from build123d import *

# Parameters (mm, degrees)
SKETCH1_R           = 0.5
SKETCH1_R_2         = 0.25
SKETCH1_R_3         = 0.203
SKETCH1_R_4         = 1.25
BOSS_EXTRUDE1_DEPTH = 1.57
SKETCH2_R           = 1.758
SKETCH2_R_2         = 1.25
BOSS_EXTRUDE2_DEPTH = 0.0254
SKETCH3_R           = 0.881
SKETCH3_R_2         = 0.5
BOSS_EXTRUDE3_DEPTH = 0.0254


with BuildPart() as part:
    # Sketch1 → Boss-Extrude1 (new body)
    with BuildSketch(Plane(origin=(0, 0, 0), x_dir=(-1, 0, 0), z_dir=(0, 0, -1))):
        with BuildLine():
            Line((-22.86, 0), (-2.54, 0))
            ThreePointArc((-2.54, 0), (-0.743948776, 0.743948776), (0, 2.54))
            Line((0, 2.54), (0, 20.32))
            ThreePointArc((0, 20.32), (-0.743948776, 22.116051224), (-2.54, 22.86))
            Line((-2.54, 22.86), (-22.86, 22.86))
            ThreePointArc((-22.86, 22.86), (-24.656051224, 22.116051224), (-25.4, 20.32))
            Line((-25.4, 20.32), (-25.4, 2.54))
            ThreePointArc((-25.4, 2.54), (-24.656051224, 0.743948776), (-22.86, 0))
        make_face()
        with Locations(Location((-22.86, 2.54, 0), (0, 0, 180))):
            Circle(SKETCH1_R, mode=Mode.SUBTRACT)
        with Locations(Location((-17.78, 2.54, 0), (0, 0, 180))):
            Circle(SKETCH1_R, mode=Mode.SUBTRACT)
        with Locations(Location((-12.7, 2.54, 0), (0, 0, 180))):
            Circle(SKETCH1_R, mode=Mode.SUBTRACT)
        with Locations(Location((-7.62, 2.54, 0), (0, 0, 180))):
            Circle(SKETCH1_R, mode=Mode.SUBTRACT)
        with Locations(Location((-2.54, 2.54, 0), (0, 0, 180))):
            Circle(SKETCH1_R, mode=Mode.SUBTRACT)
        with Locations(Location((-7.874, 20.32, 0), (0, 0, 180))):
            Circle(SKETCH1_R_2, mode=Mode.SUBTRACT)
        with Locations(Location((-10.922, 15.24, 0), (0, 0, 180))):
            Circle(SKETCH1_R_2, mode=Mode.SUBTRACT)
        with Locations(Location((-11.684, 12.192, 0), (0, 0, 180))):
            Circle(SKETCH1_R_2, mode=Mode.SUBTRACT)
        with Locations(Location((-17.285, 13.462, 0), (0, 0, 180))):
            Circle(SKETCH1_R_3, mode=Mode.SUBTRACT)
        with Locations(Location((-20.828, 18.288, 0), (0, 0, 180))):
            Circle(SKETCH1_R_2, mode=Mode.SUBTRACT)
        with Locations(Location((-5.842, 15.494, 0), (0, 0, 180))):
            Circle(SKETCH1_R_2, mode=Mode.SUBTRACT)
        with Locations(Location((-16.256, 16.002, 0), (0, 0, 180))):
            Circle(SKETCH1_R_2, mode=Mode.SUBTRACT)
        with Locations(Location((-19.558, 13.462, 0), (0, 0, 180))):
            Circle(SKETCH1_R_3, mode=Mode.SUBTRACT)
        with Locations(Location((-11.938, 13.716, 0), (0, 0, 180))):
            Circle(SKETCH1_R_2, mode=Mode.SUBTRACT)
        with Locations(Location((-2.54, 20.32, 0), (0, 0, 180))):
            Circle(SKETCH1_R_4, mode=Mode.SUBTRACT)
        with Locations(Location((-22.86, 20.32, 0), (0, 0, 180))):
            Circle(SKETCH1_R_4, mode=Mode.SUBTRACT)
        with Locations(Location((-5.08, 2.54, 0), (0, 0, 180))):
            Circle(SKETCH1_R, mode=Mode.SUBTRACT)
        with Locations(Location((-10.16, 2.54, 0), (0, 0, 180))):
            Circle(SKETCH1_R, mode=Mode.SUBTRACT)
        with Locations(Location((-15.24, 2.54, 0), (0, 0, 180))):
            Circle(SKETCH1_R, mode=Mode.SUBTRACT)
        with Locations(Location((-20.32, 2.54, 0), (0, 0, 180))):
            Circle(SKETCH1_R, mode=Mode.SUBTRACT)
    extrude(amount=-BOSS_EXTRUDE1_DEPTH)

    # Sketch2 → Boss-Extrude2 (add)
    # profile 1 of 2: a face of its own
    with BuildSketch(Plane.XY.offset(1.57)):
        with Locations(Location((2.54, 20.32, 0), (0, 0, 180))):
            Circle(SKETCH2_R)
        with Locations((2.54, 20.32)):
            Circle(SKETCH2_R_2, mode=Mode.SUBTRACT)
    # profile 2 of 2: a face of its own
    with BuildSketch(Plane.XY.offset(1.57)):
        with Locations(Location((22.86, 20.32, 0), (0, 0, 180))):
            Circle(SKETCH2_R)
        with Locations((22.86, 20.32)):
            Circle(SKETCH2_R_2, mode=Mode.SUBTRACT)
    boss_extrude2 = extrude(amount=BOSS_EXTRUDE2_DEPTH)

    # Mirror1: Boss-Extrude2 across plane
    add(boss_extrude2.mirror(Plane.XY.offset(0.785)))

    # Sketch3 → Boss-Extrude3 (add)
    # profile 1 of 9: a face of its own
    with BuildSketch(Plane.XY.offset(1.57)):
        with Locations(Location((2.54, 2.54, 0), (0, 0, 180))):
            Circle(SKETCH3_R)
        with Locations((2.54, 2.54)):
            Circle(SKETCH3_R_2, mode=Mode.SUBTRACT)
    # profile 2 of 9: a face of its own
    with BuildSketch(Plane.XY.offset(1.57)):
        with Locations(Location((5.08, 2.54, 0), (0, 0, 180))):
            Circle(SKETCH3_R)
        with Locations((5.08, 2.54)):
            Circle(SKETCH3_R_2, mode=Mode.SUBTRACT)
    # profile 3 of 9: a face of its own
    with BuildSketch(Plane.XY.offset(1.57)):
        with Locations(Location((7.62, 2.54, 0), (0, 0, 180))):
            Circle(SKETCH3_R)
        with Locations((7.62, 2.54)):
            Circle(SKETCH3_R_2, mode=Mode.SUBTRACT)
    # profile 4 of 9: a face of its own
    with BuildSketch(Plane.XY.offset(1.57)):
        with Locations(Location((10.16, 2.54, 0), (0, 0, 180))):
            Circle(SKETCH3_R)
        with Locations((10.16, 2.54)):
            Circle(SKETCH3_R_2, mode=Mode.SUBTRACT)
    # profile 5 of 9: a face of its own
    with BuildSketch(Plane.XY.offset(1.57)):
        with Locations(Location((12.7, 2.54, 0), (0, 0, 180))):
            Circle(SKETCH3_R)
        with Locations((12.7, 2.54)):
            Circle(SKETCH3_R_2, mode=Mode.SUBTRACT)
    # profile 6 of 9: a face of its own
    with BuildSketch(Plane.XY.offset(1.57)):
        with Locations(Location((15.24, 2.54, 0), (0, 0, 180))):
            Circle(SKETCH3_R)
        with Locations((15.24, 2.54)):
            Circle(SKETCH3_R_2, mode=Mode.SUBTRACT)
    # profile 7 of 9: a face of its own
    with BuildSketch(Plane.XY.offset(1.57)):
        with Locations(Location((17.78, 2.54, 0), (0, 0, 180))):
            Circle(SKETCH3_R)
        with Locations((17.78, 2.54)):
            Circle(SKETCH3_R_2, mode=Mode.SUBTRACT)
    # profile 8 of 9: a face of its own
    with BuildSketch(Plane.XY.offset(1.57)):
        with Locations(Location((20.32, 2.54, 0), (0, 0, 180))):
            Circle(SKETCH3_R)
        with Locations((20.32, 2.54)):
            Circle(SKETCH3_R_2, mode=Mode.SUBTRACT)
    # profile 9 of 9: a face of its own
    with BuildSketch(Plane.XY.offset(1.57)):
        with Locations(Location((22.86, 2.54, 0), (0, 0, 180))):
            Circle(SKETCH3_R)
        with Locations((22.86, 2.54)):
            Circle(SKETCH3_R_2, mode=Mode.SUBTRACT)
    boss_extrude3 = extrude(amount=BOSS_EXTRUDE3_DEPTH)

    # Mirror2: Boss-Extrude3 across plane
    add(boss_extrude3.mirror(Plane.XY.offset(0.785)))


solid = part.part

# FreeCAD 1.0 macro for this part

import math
import FreeCAD as App
import Part
import Sketcher
from FreeCAD import Vector
Q = App.Units.Quantity

doc = App.newDocument("Part")
params = doc.addObject("Spreadsheet::Sheet", "Params")
for row, (alias, value) in enumerate([
    ("sketch1_radius", "0.1 in"),
    ("sketch1_width", "0.8 in"),
    ("sketch1_height", "0.7 in"),
    ("pad1_length", "1.57 mm"),
    ("pad2_length", "0.001 in"),
    ("pad3_length", "0.001 in"),
], start=1):
    params.set(f"A{row}", alias)
    params.set(f"B{row}", "=" + value)
    params.setAlias(f"B{row}", alias)

body = doc.addObject("PartDesign::Body", "Body")

# Sketch on XY plane
sketch1 = doc.addObject("Sketcher::SketchObject", "Sketch")
body.addObject(sketch1)
sketch1.AttachmentSupport = (doc.XY_Plane, [""])
sketch1.MapMode = "FlatFace"
sketch1.addGeometry(Part.LineSegment(Vector(22.86, 0, 0), Vector(2.54, 0, 0)), False)
sketch1.addGeometry(Part.ArcOfCircle(Part.Circle(Vector(2.54, 2.54, 0), Vector(0, 0, 1), 2.54), math.radians(-180), math.radians(-90)), False)
sketch1.addGeometry(Part.LineSegment(Vector(0, 2.54, 0), Vector(0, 20.32, 0)), False)
sketch1.addGeometry(Part.ArcOfCircle(Part.Circle(Vector(2.54, 20.32, 0), Vector(0, 0, 1), 2.54), math.radians(90), math.radians(180)), False)
sketch1.addGeometry(Part.LineSegment(Vector(2.54, 22.86, 0), Vector(22.86, 22.86, 0)), False)
sketch1.addGeometry(Part.ArcOfCircle(Part.Circle(Vector(22.86, 20.32, 0), Vector(0, 0, 1), 2.54), math.radians(0), math.radians(90)), False)
sketch1.addGeometry(Part.LineSegment(Vector(25.4, 20.32, 0), Vector(25.4, 2.54, 0)), False)
sketch1.addGeometry(Part.ArcOfCircle(Part.Circle(Vector(22.86, 2.54, 0), Vector(0, 0, 1), 2.54), math.radians(-90), math.radians(0)), False)
sketch1.addGeometry(Part.Circle(Vector(22.86, 2.54, 0), Vector(0, 0, 1), 0.5), False)
sketch1.addGeometry(Part.Circle(Vector(20.32, 2.54, 0), Vector(0, 0, 1), 0.5), False)
sketch1.addGeometry(Part.Circle(Vector(17.78, 2.54, 0), Vector(0, 0, 1), 0.5), False)
sketch1.addGeometry(Part.Circle(Vector(15.24, 2.54, 0), Vector(0, 0, 1), 0.5), False)
sketch1.addGeometry(Part.Circle(Vector(12.7, 2.54, 0), Vector(0, 0, 1), 0.5), False)
sketch1.addGeometry(Part.Circle(Vector(10.16, 2.54, 0), Vector(0, 0, 1), 0.5), False)
sketch1.addGeometry(Part.Circle(Vector(7.62, 2.54, 0), Vector(0, 0, 1), 0.5), False)
sketch1.addGeometry(Part.Circle(Vector(5.08, 2.54, 0), Vector(0, 0, 1), 0.5), False)
sketch1.addGeometry(Part.Circle(Vector(2.54, 2.54, 0), Vector(0, 0, 1), 0.5), False)
sketch1.addGeometry(Part.Circle(Vector(19.56, 13.46, 0), Vector(0, 0, 1), 0.2), False)
sketch1.addGeometry(Part.Circle(Vector(17.29, 13.46, 0), Vector(0, 0, 1), 0.2), False)
sketch1.addGeometry(Part.Circle(Vector(16.26, 16, 0), Vector(0, 0, 1), 0.25), False)
sketch1.addGeometry(Part.Circle(Vector(20.83, 18.29, 0), Vector(0, 0, 1), 0.25), False)
sketch1.addGeometry(Part.Circle(Vector(22.86, 20.32, 0), Vector(0, 0, 1), 1.25), False)
sketch1.addGeometry(Part.Circle(Vector(11.68, 12.19, 0), Vector(0, 0, 1), 0.25), False)
sketch1.addGeometry(Part.Circle(Vector(11.94, 13.72, 0), Vector(0, 0, 1), 0.25), False)
sketch1.addGeometry(Part.Circle(Vector(10.92, 15.24, 0), Vector(0, 0, 1), 0.25), False)
sketch1.addGeometry(Part.Circle(Vector(5.84, 15.49, 0), Vector(0, 0, 1), 0.25), False)
sketch1.addGeometry(Part.Circle(Vector(7.87, 20.32, 0), Vector(0, 0, 1), 0.25), False)
sketch1.addGeometry(Part.Circle(Vector(2.54, 20.32, 0), Vector(0, 0, 1), 1.25), False)
sketch1.addConstraint(Sketcher.Constraint("Tangent", 0, 2, 1, 2))
sketch1.addConstraint(Sketcher.Constraint("Tangent", 1, 1, 2, 1))
sketch1.addConstraint(Sketcher.Constraint("Tangent", 2, 2, 3, 2))
sketch1.addConstraint(Sketcher.Constraint("Tangent", 3, 1, 4, 1))
sketch1.addConstraint(Sketcher.Constraint("Tangent", 4, 2, 5, 2))
sketch1.addConstraint(Sketcher.Constraint("Tangent", 5, 1, 6, 1))
sketch1.addConstraint(Sketcher.Constraint("Tangent", 6, 2, 7, 2))
sketch1.addConstraint(Sketcher.Constraint("Tangent", 7, 1, 0, 1))
sketch1.addConstraint(Sketcher.Constraint("Horizontal", 0))
sketch1.addConstraint(Sketcher.Constraint("Vertical", 2))
sketch1.addConstraint(Sketcher.Constraint("Horizontal", 4))
sketch1.addConstraint(Sketcher.Constraint("Vertical", 6))
sketch1.addConstraint(Sketcher.Constraint("Coincident", 8, 3, 7, 3))
sketch1.addConstraint(Sketcher.Constraint("Coincident", 16, 3, 1, 3))
sketch1.addConstraint(Sketcher.Constraint("Coincident", 21, 3, 5, 3))
sketch1.addConstraint(Sketcher.Constraint("Coincident", 27, 3, 3, 3))
sketch1.addConstraint(Sketcher.Constraint("Equal", 1, 3))
sketch1.addConstraint(Sketcher.Constraint("Equal", 3, 5))
sketch1.addConstraint(Sketcher.Constraint("Equal", 5, 7))
sketch1.addConstraint(Sketcher.Constraint("Equal", 8, 9))
sketch1.addConstraint(Sketcher.Constraint("Equal", 9, 10))
sketch1.addConstraint(Sketcher.Constraint("Equal", 10, 11))
sketch1.addConstraint(Sketcher.Constraint("Equal", 11, 12))
sketch1.addConstraint(Sketcher.Constraint("Equal", 12, 13))
sketch1.addConstraint(Sketcher.Constraint("Equal", 13, 14))
sketch1.addConstraint(Sketcher.Constraint("Equal", 14, 15))
sketch1.addConstraint(Sketcher.Constraint("Equal", 15, 16))
sketch1.addConstraint(Sketcher.Constraint("Equal", 17, 18))
sketch1.addConstraint(Sketcher.Constraint("Equal", 19, 20))
sketch1.addConstraint(Sketcher.Constraint("Equal", 20, 22))
sketch1.addConstraint(Sketcher.Constraint("Equal", 22, 23))
sketch1.addConstraint(Sketcher.Constraint("Equal", 23, 24))
sketch1.addConstraint(Sketcher.Constraint("Equal", 24, 25))
sketch1.addConstraint(Sketcher.Constraint("Equal", 25, 26))
sketch1.addConstraint(Sketcher.Constraint("Equal", 21, 27))
sketch1.addConstraint(Sketcher.Constraint("PointOnObject", 0, 2, -1))
sketch1.addConstraint(Sketcher.Constraint("PointOnObject", 1, 1, -2))
sketch1.addConstraint(Sketcher.Constraint("Horizontal", 8, 3, 9, 3))
sketch1.addConstraint(Sketcher.Constraint("Horizontal", 9, 3, 10, 3))
sketch1.addConstraint(Sketcher.Constraint("Horizontal", 10, 3, 11, 3))
sketch1.addConstraint(Sketcher.Constraint("Horizontal", 11, 3, 12, 3))
sketch1.addConstraint(Sketcher.Constraint("Horizontal", 12, 3, 13, 3))
sketch1.addConstraint(Sketcher.Constraint("Horizontal", 13, 3, 14, 3))
sketch1.addConstraint(Sketcher.Constraint("Horizontal", 14, 3, 15, 3))
sketch1.addConstraint(Sketcher.Constraint("Horizontal", 17, 3, 18, 3))
sketch1.addConstraint(Sketcher.Constraint("Horizontal", 21, 3, 26, 3))
sketch1.addConstraint(Sketcher.Constraint("Radius", 1, Q("0.1 in")))
sketch1.addConstraint(Sketcher.Constraint("DistanceX", 0, 2, 0, 1, Q("0.8 in")))
sketch1.addConstraint(Sketcher.Constraint("DistanceY", 2, 1, 2, 2, Q("0.7 in")))
sketch1.addConstraint(Sketcher.Constraint("DistanceX", -1, 1, 9, 3, Q("0.8 in")))
sketch1.addConstraint(Sketcher.Constraint("DistanceX", -1, 1, 10, 3, Q("0.7 in")))
sketch1.addConstraint(Sketcher.Constraint("DistanceX", -1, 1, 11, 3, Q("0.6 in")))
sketch1.addConstraint(Sketcher.Constraint("DistanceX", -1, 1, 12, 3, Q("0.5 in")))
sketch1.addConstraint(Sketcher.Constraint("DistanceX", -1, 1, 13, 3, Q("0.4 in")))
sketch1.addConstraint(Sketcher.Constraint("DistanceX", -1, 1, 14, 3, Q("0.3 in")))
sketch1.addConstraint(Sketcher.Constraint("DistanceX", -1, 1, 15, 3, Q("0.2 in")))
sketch1.addConstraint(Sketcher.Constraint("DistanceY", -1, 1, 24, 3, Q("0.6 in")))
sketch1.addConstraint(Sketcher.Constraint("DistanceY", 18, 3, 19, 3, Q("0.1 in")))
sketch1.addConstraint(Sketcher.Constraint("DistanceX", 23, 3, 17, 3, Q("0.3 in")))
sketch1.addConstraint(Sketcher.Constraint("DistanceX", 25, 3, 24, 3, Q("0.2 in")))
sketch1.addConstraint(Sketcher.Constraint("Diameter", 8, Q("1 mm")))
sketch1.addConstraint(Sketcher.Constraint("Diameter", 17, Q("0.406 mm")))
sketch1.addConstraint(Sketcher.Constraint("Diameter", 19, Q("0.5 mm")))
sketch1.addConstraint(Sketcher.Constraint("Diameter", 21, Q("2.5 mm")))
sketch1.addConstraint(Sketcher.Constraint("DistanceX", -1, 1, 17, 3, Q("0.77 in")))
sketch1.addConstraint(Sketcher.Constraint("DistanceY", -1, 1, 17, 3, Q("0.53 in")))
sketch1.addConstraint(Sketcher.Constraint("DistanceX", -1, 1, 19, 3, Q("0.64 in")))
sketch1.addConstraint(Sketcher.Constraint("DistanceX", -1, 1, 20, 3, Q("0.82 in")))
sketch1.addConstraint(Sketcher.Constraint("DistanceY", -1, 1, 20, 3, Q("0.72 in")))
sketch1.addConstraint(Sketcher.Constraint("DistanceX", -1, 1, 22, 3, Q("0.46 in")))
sketch1.addConstraint(Sketcher.Constraint("DistanceY", -1, 1, 22, 3, Q("0.48 in")))
sketch1.addConstraint(Sketcher.Constraint("DistanceY", -1, 1, 23, 3, Q("0.54 in")))
sketch1.addConstraint(Sketcher.Constraint("DistanceX", -1, 1, 24, 3, Q("0.43 in")))
sketch1.addConstraint(Sketcher.Constraint("DistanceY", -1, 1, 25, 3, Q("0.61 in")))
sketch1.addConstraint(Sketcher.Constraint("DistanceX", -1, 1, 26, 3, Q("0.31 in")))
sketch1.addConstraint(Sketcher.Constraint("DistanceX", -1, 1, 18, 3, Q("17.285 mm")))
sketch1.setExpression("Constraints[46]", "Params.sketch1_radius")
sketch1.setExpression("Constraints[47]", "Params.sketch1_width")
sketch1.setExpression("Constraints[48]", "Params.sketch1_height")
pad1 = doc.addObject("PartDesign::Pad", "Pad")
body.addObject(pad1)
pad1.Profile = sketch1
pad1.setExpression("Length", "Params.pad1_length")

# Sketch on XY plane
sketch2 = doc.addObject("Sketcher::SketchObject", "Sketch001")
body.addObject(sketch2)
sketch2.AttachmentSupport = (doc.XY_Plane, [""])
sketch2.MapMode = "FlatFace"
sketch2.AttachmentOffset = App.Placement(Vector(0, 0, 1.57), App.Rotation())
sketch2.addGeometry(Part.Circle(Vector(2.5, 20.3, 0), Vector(0, 0, 1), 1.8), False)
sketch2.addGeometry(Part.Circle(Vector(2.5, 20.3, 0), Vector(0, 0, 1), 1.2), False)
sketch2.addGeometry(Part.Circle(Vector(22.9, 20.3, 0), Vector(0, 0, 1), 1.8), False)
sketch2.addGeometry(Part.Circle(Vector(22.9, 20.3, 0), Vector(0, 0, 1), 1.2), False)
sketch2.addConstraint(Sketcher.Constraint("Coincident", 1, 3, 0, 3))
sketch2.addConstraint(Sketcher.Constraint("Coincident", 3, 3, 2, 3))
sketch2.addConstraint(Sketcher.Constraint("Equal", 0, 2))
sketch2.addConstraint(Sketcher.Constraint("Equal", 1, 3))
sketch2.addConstraint(Sketcher.Constraint("Horizontal", 1, 3, 2, 3))
sketch2.addConstraint(Sketcher.Constraint("DistanceX", -1, 1, 0, 3, Q("0.1 in")))
sketch2.addConstraint(Sketcher.Constraint("DistanceY", -1, 1, 0, 3, Q("0.8 in")))
sketch2.addConstraint(Sketcher.Constraint("DistanceX", -1, 1, 2, 3, Q("0.9 in")))
sketch2.addConstraint(Sketcher.Constraint("Diameter", 0, Q("3.516 mm")))
sketch2.addConstraint(Sketcher.Constraint("Diameter", 1, Q("2.5 mm")))
pad2 = doc.addObject("PartDesign::Pad", "Pad001")
body.addObject(pad2)
pad2.Profile = sketch2
pad2.setExpression("Length", "Params.pad2_length")
doc.recompute()

datumplane = doc.addObject("PartDesign::Plane", "DatumPlane")
body.addObject(datumplane)
datumplane.AttachmentSupport = (doc.XY_Plane, [""])
datumplane.MapMode = "FlatFace"
datumplane.AttachmentOffset = App.Placement(Vector(0, 0, 0.785), App.Rotation())
mirrored = doc.addObject("PartDesign::Mirrored", "Mirrored")
body.addObject(mirrored)
mirrored.Originals = [pad2]
mirrored.MirrorPlane = (datumplane, [""])
body.Tip = mirrored

# Sketch on XY plane
sketch3 = doc.addObject("Sketcher::SketchObject", "Sketch002")
body.addObject(sketch3)
sketch3.AttachmentSupport = (doc.XY_Plane, [""])
sketch3.MapMode = "FlatFace"
sketch3.AttachmentOffset = App.Placement(Vector(0, 0, 1.57), App.Rotation())
sketch3.addGeometry(Part.Circle(Vector(2.5, 2.5, 0), Vector(0, 0, 1), 0.9), False)
sketch3.addGeometry(Part.Circle(Vector(2.5, 2.5, 0), Vector(0, 0, 1), 0.5), False)
sketch3.addGeometry(Part.Circle(Vector(5.1, 2.5, 0), Vector(0, 0, 1), 0.9), False)
sketch3.addGeometry(Part.Circle(Vector(5.1, 2.5, 0), Vector(0, 0, 1), 0.5), False)
sketch3.addGeometry(Part.Circle(Vector(7.6, 2.5, 0), Vector(0, 0, 1), 0.9), False)
sketch3.addGeometry(Part.Circle(Vector(7.6, 2.5, 0), Vector(0, 0, 1), 0.5), False)
sketch3.addGeometry(Part.Circle(Vector(10.2, 2.5, 0), Vector(0, 0, 1), 0.9), False)
sketch3.addGeometry(Part.Circle(Vector(10.2, 2.5, 0), Vector(0, 0, 1), 0.5), False)
sketch3.addGeometry(Part.Circle(Vector(12.7, 2.5, 0), Vector(0, 0, 1), 0.9), False)
sketch3.addGeometry(Part.Circle(Vector(12.7, 2.5, 0), Vector(0, 0, 1), 0.5), False)
sketch3.addGeometry(Part.Circle(Vector(15.2, 2.5, 0), Vector(0, 0, 1), 0.9), False)
sketch3.addGeometry(Part.Circle(Vector(15.2, 2.5, 0), Vector(0, 0, 1), 0.5), False)
sketch3.addGeometry(Part.Circle(Vector(17.8, 2.5, 0), Vector(0, 0, 1), 0.9), False)
sketch3.addGeometry(Part.Circle(Vector(17.8, 2.5, 0), Vector(0, 0, 1), 0.5), False)
sketch3.addGeometry(Part.Circle(Vector(20.3, 2.5, 0), Vector(0, 0, 1), 0.9), False)
sketch3.addGeometry(Part.Circle(Vector(20.3, 2.5, 0), Vector(0, 0, 1), 0.5), False)
sketch3.addGeometry(Part.Circle(Vector(22.9, 2.5, 0), Vector(0, 0, 1), 0.9), False)
sketch3.addGeometry(Part.Circle(Vector(22.9, 2.5, 0), Vector(0, 0, 1), 0.5), False)
sketch3.addConstraint(Sketcher.Constraint("Coincident", 1, 3, 0, 3))
sketch3.addConstraint(Sketcher.Constraint("Coincident", 3, 3, 2, 3))
sketch3.addConstraint(Sketcher.Constraint("Coincident", 5, 3, 4, 3))
sketch3.addConstraint(Sketcher.Constraint("Coincident", 7, 3, 6, 3))
sketch3.addConstraint(Sketcher.Constraint("Coincident", 9, 3, 8, 3))
sketch3.addConstraint(Sketcher.Constraint("Coincident", 11, 3, 10, 3))
sketch3.addConstraint(Sketcher.Constraint("Coincident", 13, 3, 12, 3))
sketch3.addConstraint(Sketcher.Constraint("Coincident", 15, 3, 14, 3))
sketch3.addConstraint(Sketcher.Constraint("Coincident", 17, 3, 16, 3))
sketch3.addConstraint(Sketcher.Constraint("Equal", 0, 2))
sketch3.addConstraint(Sketcher.Constraint("Equal", 1, 3))
sketch3.addConstraint(Sketcher.Constraint("Equal", 2, 4))
sketch3.addConstraint(Sketcher.Constraint("Equal", 3, 5))
sketch3.addConstraint(Sketcher.Constraint("Equal", 4, 6))
sketch3.addConstraint(Sketcher.Constraint("Equal", 5, 7))
sketch3.addConstraint(Sketcher.Constraint("Equal", 6, 8))
sketch3.addConstraint(Sketcher.Constraint("Equal", 7, 9))
sketch3.addConstraint(Sketcher.Constraint("Equal", 8, 10))
sketch3.addConstraint(Sketcher.Constraint("Equal", 9, 11))
sketch3.addConstraint(Sketcher.Constraint("Equal", 10, 12))
sketch3.addConstraint(Sketcher.Constraint("Equal", 11, 13))
sketch3.addConstraint(Sketcher.Constraint("Equal", 12, 14))
sketch3.addConstraint(Sketcher.Constraint("Equal", 13, 15))
sketch3.addConstraint(Sketcher.Constraint("Equal", 14, 16))
sketch3.addConstraint(Sketcher.Constraint("Equal", 15, 17))
sketch3.addConstraint(Sketcher.Constraint("Horizontal", 1, 3, 2, 3))
sketch3.addConstraint(Sketcher.Constraint("Horizontal", 3, 3, 4, 3))
sketch3.addConstraint(Sketcher.Constraint("Horizontal", 5, 3, 6, 3))
sketch3.addConstraint(Sketcher.Constraint("Horizontal", 7, 3, 8, 3))
sketch3.addConstraint(Sketcher.Constraint("Horizontal", 9, 3, 10, 3))
sketch3.addConstraint(Sketcher.Constraint("Horizontal", 11, 3, 12, 3))
sketch3.addConstraint(Sketcher.Constraint("Horizontal", 13, 3, 14, 3))
sketch3.addConstraint(Sketcher.Constraint("Horizontal", 15, 3, 16, 3))
sketch3.addConstraint(Sketcher.Constraint("DistanceX", -1, 1, 0, 3, Q("0.1 in")))
sketch3.addConstraint(Sketcher.Constraint("DistanceY", -1, 1, 0, 3, Q("0.1 in")))
sketch3.addConstraint(Sketcher.Constraint("DistanceX", -1, 1, 2, 3, Q("0.2 in")))
sketch3.addConstraint(Sketcher.Constraint("DistanceX", -1, 1, 4, 3, Q("0.3 in")))
sketch3.addConstraint(Sketcher.Constraint("DistanceX", -1, 1, 6, 3, Q("0.4 in")))
sketch3.addConstraint(Sketcher.Constraint("DistanceX", -1, 1, 8, 3, Q("0.5 in")))
sketch3.addConstraint(Sketcher.Constraint("DistanceX", -1, 1, 10, 3, Q("0.6 in")))
sketch3.addConstraint(Sketcher.Constraint("DistanceX", -1, 1, 12, 3, Q("0.7 in")))
sketch3.addConstraint(Sketcher.Constraint("DistanceX", -1, 1, 14, 3, Q("0.8 in")))
sketch3.addConstraint(Sketcher.Constraint("DistanceX", -1, 1, 16, 3, Q("0.9 in")))
sketch3.addConstraint(Sketcher.Constraint("Diameter", 0, Q("1.762 mm")))
sketch3.addConstraint(Sketcher.Constraint("Diameter", 1, Q("1 mm")))
pad3 = doc.addObject("PartDesign::Pad", "Pad002")
body.addObject(pad3)
pad3.Profile = sketch3
pad3.setExpression("Length", "Params.pad3_length")
doc.recompute()

datumplane2 = doc.addObject("PartDesign::Plane", "DatumPlane001")
body.addObject(datumplane2)
datumplane2.AttachmentSupport = (doc.XY_Plane, [""])
datumplane2.MapMode = "FlatFace"
datumplane2.AttachmentOffset = App.Placement(Vector(0, 0, 0.785), App.Rotation())
mirrored2 = doc.addObject("PartDesign::Mirrored", "Mirrored001")
body.addObject(mirrored2)
mirrored2.Originals = [pad3]
mirrored2.MirrorPlane = (datumplane2, [""])
body.Tip = mirrored2

doc.recompute()
